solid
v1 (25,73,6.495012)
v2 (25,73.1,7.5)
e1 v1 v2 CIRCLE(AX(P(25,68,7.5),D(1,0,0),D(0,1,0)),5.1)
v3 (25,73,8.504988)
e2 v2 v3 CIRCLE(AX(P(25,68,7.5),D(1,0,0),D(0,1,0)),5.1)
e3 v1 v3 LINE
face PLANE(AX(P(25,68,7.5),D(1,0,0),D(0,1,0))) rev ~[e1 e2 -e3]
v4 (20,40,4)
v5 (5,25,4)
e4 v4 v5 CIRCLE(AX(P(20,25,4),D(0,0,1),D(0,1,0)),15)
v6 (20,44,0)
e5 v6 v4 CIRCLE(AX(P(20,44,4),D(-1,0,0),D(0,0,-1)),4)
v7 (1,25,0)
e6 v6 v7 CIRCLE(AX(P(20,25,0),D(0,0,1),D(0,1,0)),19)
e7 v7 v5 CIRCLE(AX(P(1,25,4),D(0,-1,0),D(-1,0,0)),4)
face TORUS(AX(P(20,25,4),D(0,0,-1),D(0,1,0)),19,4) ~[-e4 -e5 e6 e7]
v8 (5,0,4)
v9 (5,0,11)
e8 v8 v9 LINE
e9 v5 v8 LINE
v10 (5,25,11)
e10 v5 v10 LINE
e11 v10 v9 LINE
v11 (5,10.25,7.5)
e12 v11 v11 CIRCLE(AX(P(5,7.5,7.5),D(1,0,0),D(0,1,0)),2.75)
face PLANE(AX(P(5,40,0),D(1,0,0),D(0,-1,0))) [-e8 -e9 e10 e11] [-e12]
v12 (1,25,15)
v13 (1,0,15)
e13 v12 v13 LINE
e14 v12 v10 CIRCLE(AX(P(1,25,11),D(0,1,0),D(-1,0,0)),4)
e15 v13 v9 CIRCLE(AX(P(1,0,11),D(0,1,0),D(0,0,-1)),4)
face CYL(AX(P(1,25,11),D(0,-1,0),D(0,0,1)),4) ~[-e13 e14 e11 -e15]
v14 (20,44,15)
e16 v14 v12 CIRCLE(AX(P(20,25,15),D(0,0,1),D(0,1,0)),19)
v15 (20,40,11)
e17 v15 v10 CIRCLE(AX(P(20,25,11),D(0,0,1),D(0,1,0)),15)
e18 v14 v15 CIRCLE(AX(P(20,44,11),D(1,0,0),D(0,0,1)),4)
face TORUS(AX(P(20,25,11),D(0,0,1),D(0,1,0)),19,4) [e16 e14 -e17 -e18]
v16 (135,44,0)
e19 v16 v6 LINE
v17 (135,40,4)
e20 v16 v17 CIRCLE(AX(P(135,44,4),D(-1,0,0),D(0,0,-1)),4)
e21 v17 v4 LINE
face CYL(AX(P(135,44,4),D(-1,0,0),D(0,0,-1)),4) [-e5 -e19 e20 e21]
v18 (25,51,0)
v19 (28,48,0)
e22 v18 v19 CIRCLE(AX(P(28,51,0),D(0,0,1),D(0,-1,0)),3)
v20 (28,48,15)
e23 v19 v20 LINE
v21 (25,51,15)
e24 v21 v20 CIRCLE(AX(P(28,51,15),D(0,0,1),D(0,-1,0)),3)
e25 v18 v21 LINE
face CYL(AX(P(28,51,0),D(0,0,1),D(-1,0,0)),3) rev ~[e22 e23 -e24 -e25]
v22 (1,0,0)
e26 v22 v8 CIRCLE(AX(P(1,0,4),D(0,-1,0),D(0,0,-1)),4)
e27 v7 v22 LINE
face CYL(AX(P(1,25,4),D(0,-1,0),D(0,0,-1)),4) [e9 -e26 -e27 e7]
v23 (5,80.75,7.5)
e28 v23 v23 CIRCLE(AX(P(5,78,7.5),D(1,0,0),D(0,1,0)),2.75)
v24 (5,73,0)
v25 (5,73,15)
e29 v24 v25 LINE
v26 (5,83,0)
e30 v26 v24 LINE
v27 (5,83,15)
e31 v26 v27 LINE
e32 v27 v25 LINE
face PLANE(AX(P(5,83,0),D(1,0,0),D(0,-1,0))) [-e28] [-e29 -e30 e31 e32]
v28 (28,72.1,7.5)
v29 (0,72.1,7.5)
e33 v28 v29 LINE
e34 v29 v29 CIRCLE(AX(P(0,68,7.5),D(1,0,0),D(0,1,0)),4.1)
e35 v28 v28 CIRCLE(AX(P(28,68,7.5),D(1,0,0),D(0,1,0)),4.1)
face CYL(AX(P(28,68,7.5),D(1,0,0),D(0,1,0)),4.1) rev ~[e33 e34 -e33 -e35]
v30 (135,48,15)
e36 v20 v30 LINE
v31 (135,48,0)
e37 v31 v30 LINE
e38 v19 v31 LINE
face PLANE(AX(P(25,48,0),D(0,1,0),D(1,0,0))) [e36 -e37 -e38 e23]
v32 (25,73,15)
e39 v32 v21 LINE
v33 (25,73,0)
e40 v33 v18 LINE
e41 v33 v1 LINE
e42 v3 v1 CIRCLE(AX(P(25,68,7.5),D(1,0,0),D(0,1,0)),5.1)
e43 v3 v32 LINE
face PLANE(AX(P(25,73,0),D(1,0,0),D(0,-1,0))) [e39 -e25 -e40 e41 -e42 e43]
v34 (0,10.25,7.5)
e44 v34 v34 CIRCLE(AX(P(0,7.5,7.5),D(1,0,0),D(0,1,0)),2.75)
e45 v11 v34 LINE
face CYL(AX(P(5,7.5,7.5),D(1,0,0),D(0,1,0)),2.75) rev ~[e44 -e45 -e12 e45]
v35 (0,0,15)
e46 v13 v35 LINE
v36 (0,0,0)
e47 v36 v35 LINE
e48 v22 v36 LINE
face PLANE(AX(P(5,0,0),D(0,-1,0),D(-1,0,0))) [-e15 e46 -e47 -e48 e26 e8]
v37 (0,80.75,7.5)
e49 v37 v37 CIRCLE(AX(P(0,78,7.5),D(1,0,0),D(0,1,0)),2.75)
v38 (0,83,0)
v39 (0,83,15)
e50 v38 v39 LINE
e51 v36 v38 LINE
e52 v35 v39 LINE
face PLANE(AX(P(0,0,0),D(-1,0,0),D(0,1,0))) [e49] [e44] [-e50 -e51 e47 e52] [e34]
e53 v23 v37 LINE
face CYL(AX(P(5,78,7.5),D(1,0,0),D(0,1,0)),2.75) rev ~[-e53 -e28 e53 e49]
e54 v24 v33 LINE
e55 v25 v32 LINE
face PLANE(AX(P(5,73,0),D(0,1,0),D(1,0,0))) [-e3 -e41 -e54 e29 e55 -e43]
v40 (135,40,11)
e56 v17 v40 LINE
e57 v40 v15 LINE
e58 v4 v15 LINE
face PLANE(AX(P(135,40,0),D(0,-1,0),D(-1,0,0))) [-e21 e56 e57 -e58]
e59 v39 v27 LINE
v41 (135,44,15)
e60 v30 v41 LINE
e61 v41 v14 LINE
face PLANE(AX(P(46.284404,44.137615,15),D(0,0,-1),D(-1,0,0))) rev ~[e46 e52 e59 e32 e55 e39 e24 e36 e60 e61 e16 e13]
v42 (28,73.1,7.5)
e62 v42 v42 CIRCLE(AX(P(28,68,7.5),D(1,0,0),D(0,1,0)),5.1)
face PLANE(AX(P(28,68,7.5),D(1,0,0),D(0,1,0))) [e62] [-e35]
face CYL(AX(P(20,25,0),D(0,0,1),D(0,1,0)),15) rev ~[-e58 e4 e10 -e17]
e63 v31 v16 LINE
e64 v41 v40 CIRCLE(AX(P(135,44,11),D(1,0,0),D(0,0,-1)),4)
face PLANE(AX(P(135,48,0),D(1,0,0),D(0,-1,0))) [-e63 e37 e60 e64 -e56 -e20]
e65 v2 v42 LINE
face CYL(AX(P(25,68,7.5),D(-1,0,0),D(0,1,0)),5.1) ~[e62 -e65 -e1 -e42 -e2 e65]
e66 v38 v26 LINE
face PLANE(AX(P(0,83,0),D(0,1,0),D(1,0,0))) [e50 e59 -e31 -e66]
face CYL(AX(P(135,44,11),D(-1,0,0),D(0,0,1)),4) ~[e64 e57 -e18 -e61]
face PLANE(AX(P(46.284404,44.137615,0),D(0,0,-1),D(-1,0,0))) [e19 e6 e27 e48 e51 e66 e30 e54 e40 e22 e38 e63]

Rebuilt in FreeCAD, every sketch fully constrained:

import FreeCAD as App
import Part
import Sketcher

V = App.Vector


def edges_at(feature, points):
    """Names of the edges that pass closest to the given points."""
    edges = feature.Shape.Edges
    near = lambda p: min(range(len(edges)), key=lambda i: edges[i].distToShape(Part.Vertex(*p))[0])
    return sorted({f"Edge{near(p) + 1}" for p in points})


def add_polygon(sketch, points):
    """Adds a closed chain of lines whose ends are joined by coincident constraints."""
    first, n = sketch.GeometryCount, len(points)
    for a, b in zip(points, points[1:] + points[:1]):
        sketch.addGeometry(Part.LineSegment(App.Vector(*a, 0), App.Vector(*b, 0)), False)
    for i in range(n):
        sketch.addConstraint(Sketcher.Constraint("Coincident", first + i, 2, first + (i + 1) % n, 1))

doc = App.newDocument("Part")
body = doc.addObject("PartDesign::Body", "Body")

sketch1 = body.newObject("Sketcher::SketchObject", "Sketch")
sketch1.AttachmentSupport = (doc.getObject("XY_Plane"), [""])
sketch1.MapMode = "FlatFace"
add_polygon(sketch1, [(0, 83), (0, 0), (5, 0), (5, 40), (135, 40), (135, 48), (25, 48), (25, 73), (5, 73), (5, 83)])
sketch1.addConstraint([
    Sketcher.Constraint("Vertical", 0),
    Sketcher.Constraint("Horizontal", 1),
    Sketcher.Constraint("Vertical", 2),
    Sketcher.Constraint("Horizontal", 3),
    Sketcher.Constraint("Vertical", 4),
    Sketcher.Constraint("Horizontal", 5),
    Sketcher.Constraint("Vertical", 6),
    Sketcher.Constraint("Horizontal", 7),
    Sketcher.Constraint("Vertical", 8),
    Sketcher.Constraint("Horizontal", 9),
    Sketcher.Constraint("Coincident", 0, 2, -1, 1),
    Sketcher.Constraint("Vertical", 2, 2, 7, 2),
    Sketcher.Constraint("DistanceX", 1, 1, 1, 2, 5.0),
    Sketcher.Constraint("DistanceX", 3, 1, 3, 2, 130.0),
    Sketcher.Constraint("DistanceX", 5, 2, 5, 1, 110.0),
    Sketcher.Constraint("DistanceY", 0, 2, 0, 1, 83.0),
    Sketcher.Constraint("DistanceY", 2, 1, 2, 2, 40.0),
    Sketcher.Constraint("DistanceY", 4, 1, 4, 2, 8.0),
    Sketcher.Constraint("DistanceY", 6, 1, 6, 2, 25.0),
])
pad1 = body.newObject("PartDesign::Pad", "Pad")
pad1.Profile = sketch1
pad1.Length = 15
doc.recompute()

fillet = body.newObject("PartDesign::Fillet", "Fillet")
fillet.Base = (pad1, edges_at(pad1, [(25, 48, 7.5)]))
fillet.Radius = 3
doc.recompute()

fillet2 = body.newObject("PartDesign::Fillet", "Fillet001")
fillet2.Base = (fillet, edges_at(fillet, [(5, 40, 7.5)]))
fillet2.Radius = 15

sketch2 = body.newObject("Sketcher::SketchObject", "Sketch001")
sketch2.AttachmentSupport = (doc.getObject("YZ_Plane"), [""])
sketch2.MapMode = "FlatFace"
sketch2.AttachmentOffset = App.Placement(V(0, 0, 5), App.Rotation())
sketch2.addGeometry([
    Part.Circle(V(7.5, 7.5, 0), V(0, 0, 1), 2.75),
    Part.Circle(V(78, 7.5, 0), V(0, 0, 1), 2.75),
], False)
sketch2.addConstraint([
    Sketcher.Constraint("Equal", 0, 1),
    Sketcher.Constraint("Horizontal", 0, 3, 1, 3),
    Sketcher.Constraint("Diameter", 0, 5.5),
    Sketcher.Constraint("DistanceX", -1, 1, 1, 3, 78.0),
    Sketcher.Constraint("DistanceX", -1, 1, 0, 3, 7.5),
    Sketcher.Constraint("DistanceY", -1, 1, 0, 3, 7.5),
])
pocket1 = body.newObject("PartDesign::Pocket", "Pocket")
pocket1.Profile = sketch2
pocket1.Type = "ThroughAll"

sketch3 = body.newObject("Sketcher::SketchObject", "Sketch002")
sketch3.AttachmentSupport = (doc.getObject("YZ_Plane"), [""])
sketch3.MapMode = "FlatFace"
sketch3.AttachmentOffset = App.Placement(V(0, 0, 25), App.Rotation())
sketch3.addGeometry(Part.Circle(V(68, 7.5, 0), V(0, 0, 1), 5.1), False)
sketch3.addConstraint([
    Sketcher.Constraint("Diameter", 0, 10.2),
    Sketcher.Constraint("DistanceX", -1, 1, 0, 3, 68.0),
    Sketcher.Constraint("DistanceY", -1, 1, 0, 3, 7.5),
])
pad2 = body.newObject("PartDesign::Pad", "Pad001")
pad2.Profile = sketch3
pad2.Length = 3

sketch4 = body.newObject("Sketcher::SketchObject", "Sketch003")
sketch4.AttachmentSupport = (doc.getObject("YZ_Plane"), [""])
sketch4.MapMode = "FlatFace"
sketch4.AttachmentOffset = App.Placement(V(0, 0, 28), App.Rotation())
sketch4.addGeometry(Part.Circle(V(68, 7.5, 0), V(0, 0, 1), 4.1), False)
sketch4.addConstraint([
    Sketcher.Constraint("Diameter", 0, 8.2),
    Sketcher.Constraint("DistanceX", -1, 1, 0, 3, 68.0),
    Sketcher.Constraint("DistanceY", -1, 1, 0, 3, 7.5),
])
pocket2 = body.newObject("PartDesign::Pocket", "Pocket001")
pocket2.Profile = sketch4
pocket2.Type = "ThroughAll"
doc.recompute()

fillet3 = body.newObject("PartDesign::Fillet", "Fillet002")
fillet3.Base = (pocket2, edges_at(pocket2, [(77.5, 40, 15), (77.5, 40, 0)]))
fillet3.Radius = 4

doc.recompute()
